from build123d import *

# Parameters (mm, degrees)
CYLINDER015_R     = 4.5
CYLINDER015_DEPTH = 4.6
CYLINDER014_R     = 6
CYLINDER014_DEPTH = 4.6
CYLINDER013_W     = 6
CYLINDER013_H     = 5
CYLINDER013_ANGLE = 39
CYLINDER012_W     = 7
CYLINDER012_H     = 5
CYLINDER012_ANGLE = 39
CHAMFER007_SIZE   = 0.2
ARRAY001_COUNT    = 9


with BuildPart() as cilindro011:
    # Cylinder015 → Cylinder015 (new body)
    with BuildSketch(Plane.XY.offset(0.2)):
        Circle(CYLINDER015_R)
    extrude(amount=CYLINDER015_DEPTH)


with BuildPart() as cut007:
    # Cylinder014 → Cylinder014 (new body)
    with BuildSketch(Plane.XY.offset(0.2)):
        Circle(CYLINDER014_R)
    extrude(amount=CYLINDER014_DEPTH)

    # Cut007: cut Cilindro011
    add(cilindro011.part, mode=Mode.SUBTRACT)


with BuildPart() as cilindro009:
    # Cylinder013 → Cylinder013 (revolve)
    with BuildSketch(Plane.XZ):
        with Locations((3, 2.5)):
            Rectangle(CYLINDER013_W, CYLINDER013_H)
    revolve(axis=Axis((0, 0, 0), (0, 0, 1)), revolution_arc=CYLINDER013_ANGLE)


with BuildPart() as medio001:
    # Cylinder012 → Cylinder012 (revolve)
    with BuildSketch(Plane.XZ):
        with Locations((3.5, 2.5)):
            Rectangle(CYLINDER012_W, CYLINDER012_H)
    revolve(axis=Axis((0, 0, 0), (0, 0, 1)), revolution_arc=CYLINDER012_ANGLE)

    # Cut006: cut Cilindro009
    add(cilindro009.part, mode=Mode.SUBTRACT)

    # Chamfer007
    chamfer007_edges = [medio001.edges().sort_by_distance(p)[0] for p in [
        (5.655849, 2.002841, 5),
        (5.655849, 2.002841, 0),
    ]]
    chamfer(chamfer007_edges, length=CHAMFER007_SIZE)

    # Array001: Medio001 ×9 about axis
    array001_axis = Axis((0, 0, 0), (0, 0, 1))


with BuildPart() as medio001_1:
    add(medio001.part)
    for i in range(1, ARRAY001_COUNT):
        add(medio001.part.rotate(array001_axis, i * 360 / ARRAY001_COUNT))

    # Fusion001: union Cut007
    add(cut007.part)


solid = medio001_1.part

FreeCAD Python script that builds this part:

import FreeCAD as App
import Part
import Sketcher

V = App.Vector


def edges_at(feature, points):
    """Names of the edges that pass closest to the given points."""
    edges = feature.Shape.Edges
    near = lambda p: min(range(len(edges)), key=lambda i: edges[i].distToShape(Part.Vertex(*p))[0])
    return sorted({f"Edge{near(p) + 1}" for p in points})


def add_polygon(sketch, points):
    """Adds a closed chain of lines whose ends are joined by coincident constraints."""
    first, n = sketch.GeometryCount, len(points)
    for a, b in zip(points, points[1:] + points[:1]):
        sketch.addGeometry(Part.LineSegment(App.Vector(*a, 0), App.Vector(*b, 0)), False)
    for i in range(n):
        sketch.addConstraint(Sketcher.Constraint("Coincident", first + i, 2, first + (i + 1) % n, 1))

doc = App.newDocument("Part")
body = doc.addObject("PartDesign::Body", "Body")

sketch1 = body.newObject("Sketcher::SketchObject", "Sketch")
sketch1.AttachmentSupport = (doc.getObject("XY_Plane"), [""])
sketch1.MapMode = "FlatFace"
sketch1.AttachmentOffset = App.Placement(V(0, 0, 0.2), App.Rotation())
sketch1.addGeometry(Part.Circle(V(0, 0, 0), V(0, 0, 1), 4.5), False)
sketch1.addConstraint([
    Sketcher.Constraint("Coincident", 0, 3, -1, 1),
    Sketcher.Constraint("Diameter", 0, 9.0),
])
pad1 = body.newObject("PartDesign::Pad", "Pad")
pad1.Profile = sketch1
pad1.Length = 4.6
body2 = doc.addObject("PartDesign::Body", "Body001")

sketch2 = body2.newObject("Sketcher::SketchObject", "Sketch001")
sketch2.AttachmentSupport = (doc.getObject("XY_Plane001"), [""])
sketch2.MapMode = "FlatFace"
sketch2.AttachmentOffset = App.Placement(V(0, 0, 0.2), App.Rotation())
sketch2.addGeometry(Part.Circle(V(0, 0, 0), V(0, 0, 1), 6), False)
sketch2.addConstraint([
    Sketcher.Constraint("Coincident", 0, 3, -1, 1),
    Sketcher.Constraint("Diameter", 0, 12.0),
])
pad2 = body2.newObject("PartDesign::Pad", "Pad001")
pad2.Profile = sketch2
pad2.Length = 4.6
doc.recompute()

boolean = body2.newObject("PartDesign::Boolean", "Boolean")
boolean.Type = "Cut"
boolean.addObjects([body])
body3 = doc.addObject("PartDesign::Body", "Body002")

sketch3 = body3.newObject("Sketcher::SketchObject", "Sketch002")
sketch3.AttachmentSupport = (doc.getObject("XZ_Plane002"), [""])
sketch3.MapMode = "FlatFace"
add_polygon(sketch3, [(0, 5), (0, 0), (6, 0), (6, 5)])
sketch3.addConstraint([
    Sketcher.Constraint("Vertical", 0),
    Sketcher.Constraint("Horizontal", 1),
    Sketcher.Constraint("Vertical", 2),
    Sketcher.Constraint("Horizontal", 3),
    Sketcher.Constraint("Coincident", 0, 2, -1, 1),
    Sketcher.Constraint("DistanceX", 1, 1, 1, 2, 6.0),
    Sketcher.Constraint("DistanceY", 0, 2, 0, 1, 5.0),
])
revolution = body3.newObject("PartDesign::Revolution", "Revolution")
revolution.Profile = sketch3
revolution.ReferenceAxis = (sketch3, ["V_Axis"])
revolution.Angle = 39
body4 = doc.addObject("PartDesign::Body", "Body003")

sketch4 = body4.newObject("Sketcher::SketchObject", "Sketch003")
sketch4.AttachmentSupport = (doc.getObject("XZ_Plane003"), [""])
sketch4.MapMode = "FlatFace"
add_polygon(sketch4, [(0, 5), (0, 0), (7, 0), (7, 5)])
sketch4.addConstraint([
    Sketcher.Constraint("Vertical", 0),
    Sketcher.Constraint("Horizontal", 1),
    Sketcher.Constraint("Vertical", 2),
    Sketcher.Constraint("Horizontal", 3),
    Sketcher.Constraint("Coincident", 0, 2, -1, 1),
    Sketcher.Constraint("DistanceX", 1, 1, 1, 2, 7.0),
    Sketcher.Constraint("DistanceY", 0, 2, 0, 1, 5.0),
])
revolution2 = body4.newObject("PartDesign::Revolution", "Revolution001")
revolution2.Profile = sketch4
revolution2.ReferenceAxis = (sketch4, ["V_Axis"])
revolution2.Angle = 39
doc.recompute()

boolean2 = body4.newObject("PartDesign::Boolean", "Boolean001")
boolean2.Type = "Cut"
boolean2.addObjects([body3])
doc.recompute()

chamfer = body4.newObject("PartDesign::Chamfer", "Chamfer")
chamfer.Base = (boolean2, edges_at(boolean2, [(5.656, 2.003, 5), (5.656, 2.003, 0)]))
chamfer.Size = 0.2
body5 = doc.addObject("PartDesign::Body", "Body004")
body5.AllowCompound = True
doc.recompute()

body5.BaseFeature = body4
doc.recompute()

body6 = doc.addObject("PartDesign::Body", "Body005")
body6.BaseFeature = body4
body6.Placement = App.Placement(V(0, 0, 0), App.Rotation(V(0, 0, 1), 40))
boolean3 = body5.newObject("PartDesign::Boolean", "Boolean002")
boolean3.Type = "Fuse"
boolean3.addObjects([body6])
doc.recompute()

body7 = doc.addObject("PartDesign::Body", "Body006")
body7.BaseFeature = body4
body7.Placement = App.Placement(V(0, 0, 0), App.Rotation(V(0, 0, 1), 80))
boolean4 = body5.newObject("PartDesign::Boolean", "Boolean003")
boolean4.Type = "Fuse"
boolean4.addObjects([body7])
doc.recompute()

body8 = doc.addObject("PartDesign::Body", "Body007")
body8.BaseFeature = body4
body8.Placement = App.Placement(V(0, 0, 0), App.Rotation(V(0, 0, 1), 120))
boolean5 = body5.newObject("PartDesign::Boolean", "Boolean004")
boolean5.Type = "Fuse"
boolean5.addObjects([body8])
doc.recompute()

body9 = doc.addObject("PartDesign::Body", "Body008")
body9.BaseFeature = body4
body9.Placement = App.Placement(V(0, 0, 0), App.Rotation(V(0, 0, 1), 160))
boolean6 = body5.newObject("PartDesign::Boolean", "Boolean005")
boolean6.Type = "Fuse"
boolean6.addObjects([body9])
doc.recompute()

body10 = doc.addObject("PartDesign::Body", "Body009")
body10.BaseFeature = body4
body10.Placement = App.Placement(V(0, 0, 0), App.Rotation(V(0, 0, 1), 200))
boolean7 = body5.newObject("PartDesign::Boolean", "Boolean006")
boolean7.Type = "Fuse"
boolean7.addObjects([body10])
doc.recompute()

body11 = doc.addObject("PartDesign::Body", "Body010")
body11.BaseFeature = body4
body11.Placement = App.Placement(V(0, 0, 0), App.Rotation(V(0, 0, 1), 240))
boolean8 = body5.newObject("PartDesign::Boolean", "Boolean007")
boolean8.Type = "Fuse"
boolean8.addObjects([body11])
doc.recompute()

body12 = doc.addObject("PartDesign::Body", "Body011")
body12.BaseFeature = body4
body12.Placement = App.Placement(V(0, 0, 0), App.Rotation(V(0, 0, 1), 280))
boolean9 = body5.newObject("PartDesign::Boolean", "Boolean008")
boolean9.Type = "Fuse"
boolean9.addObjects([body12])
doc.recompute()

body4.Placement = App.Placement(V(0, 0, 0), App.Rotation(V(0, 0, 1), 320))
boolean10 = body5.newObject("PartDesign::Boolean", "Boolean009")
boolean10.Type = "Fuse"
boolean10.addObjects([body4])
doc.recompute()

boolean11 = body5.newObject("PartDesign::Boolean", "Boolean010")
boolean11.Type = "Fuse"
boolean11.addObjects([body2])

doc.recompute()
